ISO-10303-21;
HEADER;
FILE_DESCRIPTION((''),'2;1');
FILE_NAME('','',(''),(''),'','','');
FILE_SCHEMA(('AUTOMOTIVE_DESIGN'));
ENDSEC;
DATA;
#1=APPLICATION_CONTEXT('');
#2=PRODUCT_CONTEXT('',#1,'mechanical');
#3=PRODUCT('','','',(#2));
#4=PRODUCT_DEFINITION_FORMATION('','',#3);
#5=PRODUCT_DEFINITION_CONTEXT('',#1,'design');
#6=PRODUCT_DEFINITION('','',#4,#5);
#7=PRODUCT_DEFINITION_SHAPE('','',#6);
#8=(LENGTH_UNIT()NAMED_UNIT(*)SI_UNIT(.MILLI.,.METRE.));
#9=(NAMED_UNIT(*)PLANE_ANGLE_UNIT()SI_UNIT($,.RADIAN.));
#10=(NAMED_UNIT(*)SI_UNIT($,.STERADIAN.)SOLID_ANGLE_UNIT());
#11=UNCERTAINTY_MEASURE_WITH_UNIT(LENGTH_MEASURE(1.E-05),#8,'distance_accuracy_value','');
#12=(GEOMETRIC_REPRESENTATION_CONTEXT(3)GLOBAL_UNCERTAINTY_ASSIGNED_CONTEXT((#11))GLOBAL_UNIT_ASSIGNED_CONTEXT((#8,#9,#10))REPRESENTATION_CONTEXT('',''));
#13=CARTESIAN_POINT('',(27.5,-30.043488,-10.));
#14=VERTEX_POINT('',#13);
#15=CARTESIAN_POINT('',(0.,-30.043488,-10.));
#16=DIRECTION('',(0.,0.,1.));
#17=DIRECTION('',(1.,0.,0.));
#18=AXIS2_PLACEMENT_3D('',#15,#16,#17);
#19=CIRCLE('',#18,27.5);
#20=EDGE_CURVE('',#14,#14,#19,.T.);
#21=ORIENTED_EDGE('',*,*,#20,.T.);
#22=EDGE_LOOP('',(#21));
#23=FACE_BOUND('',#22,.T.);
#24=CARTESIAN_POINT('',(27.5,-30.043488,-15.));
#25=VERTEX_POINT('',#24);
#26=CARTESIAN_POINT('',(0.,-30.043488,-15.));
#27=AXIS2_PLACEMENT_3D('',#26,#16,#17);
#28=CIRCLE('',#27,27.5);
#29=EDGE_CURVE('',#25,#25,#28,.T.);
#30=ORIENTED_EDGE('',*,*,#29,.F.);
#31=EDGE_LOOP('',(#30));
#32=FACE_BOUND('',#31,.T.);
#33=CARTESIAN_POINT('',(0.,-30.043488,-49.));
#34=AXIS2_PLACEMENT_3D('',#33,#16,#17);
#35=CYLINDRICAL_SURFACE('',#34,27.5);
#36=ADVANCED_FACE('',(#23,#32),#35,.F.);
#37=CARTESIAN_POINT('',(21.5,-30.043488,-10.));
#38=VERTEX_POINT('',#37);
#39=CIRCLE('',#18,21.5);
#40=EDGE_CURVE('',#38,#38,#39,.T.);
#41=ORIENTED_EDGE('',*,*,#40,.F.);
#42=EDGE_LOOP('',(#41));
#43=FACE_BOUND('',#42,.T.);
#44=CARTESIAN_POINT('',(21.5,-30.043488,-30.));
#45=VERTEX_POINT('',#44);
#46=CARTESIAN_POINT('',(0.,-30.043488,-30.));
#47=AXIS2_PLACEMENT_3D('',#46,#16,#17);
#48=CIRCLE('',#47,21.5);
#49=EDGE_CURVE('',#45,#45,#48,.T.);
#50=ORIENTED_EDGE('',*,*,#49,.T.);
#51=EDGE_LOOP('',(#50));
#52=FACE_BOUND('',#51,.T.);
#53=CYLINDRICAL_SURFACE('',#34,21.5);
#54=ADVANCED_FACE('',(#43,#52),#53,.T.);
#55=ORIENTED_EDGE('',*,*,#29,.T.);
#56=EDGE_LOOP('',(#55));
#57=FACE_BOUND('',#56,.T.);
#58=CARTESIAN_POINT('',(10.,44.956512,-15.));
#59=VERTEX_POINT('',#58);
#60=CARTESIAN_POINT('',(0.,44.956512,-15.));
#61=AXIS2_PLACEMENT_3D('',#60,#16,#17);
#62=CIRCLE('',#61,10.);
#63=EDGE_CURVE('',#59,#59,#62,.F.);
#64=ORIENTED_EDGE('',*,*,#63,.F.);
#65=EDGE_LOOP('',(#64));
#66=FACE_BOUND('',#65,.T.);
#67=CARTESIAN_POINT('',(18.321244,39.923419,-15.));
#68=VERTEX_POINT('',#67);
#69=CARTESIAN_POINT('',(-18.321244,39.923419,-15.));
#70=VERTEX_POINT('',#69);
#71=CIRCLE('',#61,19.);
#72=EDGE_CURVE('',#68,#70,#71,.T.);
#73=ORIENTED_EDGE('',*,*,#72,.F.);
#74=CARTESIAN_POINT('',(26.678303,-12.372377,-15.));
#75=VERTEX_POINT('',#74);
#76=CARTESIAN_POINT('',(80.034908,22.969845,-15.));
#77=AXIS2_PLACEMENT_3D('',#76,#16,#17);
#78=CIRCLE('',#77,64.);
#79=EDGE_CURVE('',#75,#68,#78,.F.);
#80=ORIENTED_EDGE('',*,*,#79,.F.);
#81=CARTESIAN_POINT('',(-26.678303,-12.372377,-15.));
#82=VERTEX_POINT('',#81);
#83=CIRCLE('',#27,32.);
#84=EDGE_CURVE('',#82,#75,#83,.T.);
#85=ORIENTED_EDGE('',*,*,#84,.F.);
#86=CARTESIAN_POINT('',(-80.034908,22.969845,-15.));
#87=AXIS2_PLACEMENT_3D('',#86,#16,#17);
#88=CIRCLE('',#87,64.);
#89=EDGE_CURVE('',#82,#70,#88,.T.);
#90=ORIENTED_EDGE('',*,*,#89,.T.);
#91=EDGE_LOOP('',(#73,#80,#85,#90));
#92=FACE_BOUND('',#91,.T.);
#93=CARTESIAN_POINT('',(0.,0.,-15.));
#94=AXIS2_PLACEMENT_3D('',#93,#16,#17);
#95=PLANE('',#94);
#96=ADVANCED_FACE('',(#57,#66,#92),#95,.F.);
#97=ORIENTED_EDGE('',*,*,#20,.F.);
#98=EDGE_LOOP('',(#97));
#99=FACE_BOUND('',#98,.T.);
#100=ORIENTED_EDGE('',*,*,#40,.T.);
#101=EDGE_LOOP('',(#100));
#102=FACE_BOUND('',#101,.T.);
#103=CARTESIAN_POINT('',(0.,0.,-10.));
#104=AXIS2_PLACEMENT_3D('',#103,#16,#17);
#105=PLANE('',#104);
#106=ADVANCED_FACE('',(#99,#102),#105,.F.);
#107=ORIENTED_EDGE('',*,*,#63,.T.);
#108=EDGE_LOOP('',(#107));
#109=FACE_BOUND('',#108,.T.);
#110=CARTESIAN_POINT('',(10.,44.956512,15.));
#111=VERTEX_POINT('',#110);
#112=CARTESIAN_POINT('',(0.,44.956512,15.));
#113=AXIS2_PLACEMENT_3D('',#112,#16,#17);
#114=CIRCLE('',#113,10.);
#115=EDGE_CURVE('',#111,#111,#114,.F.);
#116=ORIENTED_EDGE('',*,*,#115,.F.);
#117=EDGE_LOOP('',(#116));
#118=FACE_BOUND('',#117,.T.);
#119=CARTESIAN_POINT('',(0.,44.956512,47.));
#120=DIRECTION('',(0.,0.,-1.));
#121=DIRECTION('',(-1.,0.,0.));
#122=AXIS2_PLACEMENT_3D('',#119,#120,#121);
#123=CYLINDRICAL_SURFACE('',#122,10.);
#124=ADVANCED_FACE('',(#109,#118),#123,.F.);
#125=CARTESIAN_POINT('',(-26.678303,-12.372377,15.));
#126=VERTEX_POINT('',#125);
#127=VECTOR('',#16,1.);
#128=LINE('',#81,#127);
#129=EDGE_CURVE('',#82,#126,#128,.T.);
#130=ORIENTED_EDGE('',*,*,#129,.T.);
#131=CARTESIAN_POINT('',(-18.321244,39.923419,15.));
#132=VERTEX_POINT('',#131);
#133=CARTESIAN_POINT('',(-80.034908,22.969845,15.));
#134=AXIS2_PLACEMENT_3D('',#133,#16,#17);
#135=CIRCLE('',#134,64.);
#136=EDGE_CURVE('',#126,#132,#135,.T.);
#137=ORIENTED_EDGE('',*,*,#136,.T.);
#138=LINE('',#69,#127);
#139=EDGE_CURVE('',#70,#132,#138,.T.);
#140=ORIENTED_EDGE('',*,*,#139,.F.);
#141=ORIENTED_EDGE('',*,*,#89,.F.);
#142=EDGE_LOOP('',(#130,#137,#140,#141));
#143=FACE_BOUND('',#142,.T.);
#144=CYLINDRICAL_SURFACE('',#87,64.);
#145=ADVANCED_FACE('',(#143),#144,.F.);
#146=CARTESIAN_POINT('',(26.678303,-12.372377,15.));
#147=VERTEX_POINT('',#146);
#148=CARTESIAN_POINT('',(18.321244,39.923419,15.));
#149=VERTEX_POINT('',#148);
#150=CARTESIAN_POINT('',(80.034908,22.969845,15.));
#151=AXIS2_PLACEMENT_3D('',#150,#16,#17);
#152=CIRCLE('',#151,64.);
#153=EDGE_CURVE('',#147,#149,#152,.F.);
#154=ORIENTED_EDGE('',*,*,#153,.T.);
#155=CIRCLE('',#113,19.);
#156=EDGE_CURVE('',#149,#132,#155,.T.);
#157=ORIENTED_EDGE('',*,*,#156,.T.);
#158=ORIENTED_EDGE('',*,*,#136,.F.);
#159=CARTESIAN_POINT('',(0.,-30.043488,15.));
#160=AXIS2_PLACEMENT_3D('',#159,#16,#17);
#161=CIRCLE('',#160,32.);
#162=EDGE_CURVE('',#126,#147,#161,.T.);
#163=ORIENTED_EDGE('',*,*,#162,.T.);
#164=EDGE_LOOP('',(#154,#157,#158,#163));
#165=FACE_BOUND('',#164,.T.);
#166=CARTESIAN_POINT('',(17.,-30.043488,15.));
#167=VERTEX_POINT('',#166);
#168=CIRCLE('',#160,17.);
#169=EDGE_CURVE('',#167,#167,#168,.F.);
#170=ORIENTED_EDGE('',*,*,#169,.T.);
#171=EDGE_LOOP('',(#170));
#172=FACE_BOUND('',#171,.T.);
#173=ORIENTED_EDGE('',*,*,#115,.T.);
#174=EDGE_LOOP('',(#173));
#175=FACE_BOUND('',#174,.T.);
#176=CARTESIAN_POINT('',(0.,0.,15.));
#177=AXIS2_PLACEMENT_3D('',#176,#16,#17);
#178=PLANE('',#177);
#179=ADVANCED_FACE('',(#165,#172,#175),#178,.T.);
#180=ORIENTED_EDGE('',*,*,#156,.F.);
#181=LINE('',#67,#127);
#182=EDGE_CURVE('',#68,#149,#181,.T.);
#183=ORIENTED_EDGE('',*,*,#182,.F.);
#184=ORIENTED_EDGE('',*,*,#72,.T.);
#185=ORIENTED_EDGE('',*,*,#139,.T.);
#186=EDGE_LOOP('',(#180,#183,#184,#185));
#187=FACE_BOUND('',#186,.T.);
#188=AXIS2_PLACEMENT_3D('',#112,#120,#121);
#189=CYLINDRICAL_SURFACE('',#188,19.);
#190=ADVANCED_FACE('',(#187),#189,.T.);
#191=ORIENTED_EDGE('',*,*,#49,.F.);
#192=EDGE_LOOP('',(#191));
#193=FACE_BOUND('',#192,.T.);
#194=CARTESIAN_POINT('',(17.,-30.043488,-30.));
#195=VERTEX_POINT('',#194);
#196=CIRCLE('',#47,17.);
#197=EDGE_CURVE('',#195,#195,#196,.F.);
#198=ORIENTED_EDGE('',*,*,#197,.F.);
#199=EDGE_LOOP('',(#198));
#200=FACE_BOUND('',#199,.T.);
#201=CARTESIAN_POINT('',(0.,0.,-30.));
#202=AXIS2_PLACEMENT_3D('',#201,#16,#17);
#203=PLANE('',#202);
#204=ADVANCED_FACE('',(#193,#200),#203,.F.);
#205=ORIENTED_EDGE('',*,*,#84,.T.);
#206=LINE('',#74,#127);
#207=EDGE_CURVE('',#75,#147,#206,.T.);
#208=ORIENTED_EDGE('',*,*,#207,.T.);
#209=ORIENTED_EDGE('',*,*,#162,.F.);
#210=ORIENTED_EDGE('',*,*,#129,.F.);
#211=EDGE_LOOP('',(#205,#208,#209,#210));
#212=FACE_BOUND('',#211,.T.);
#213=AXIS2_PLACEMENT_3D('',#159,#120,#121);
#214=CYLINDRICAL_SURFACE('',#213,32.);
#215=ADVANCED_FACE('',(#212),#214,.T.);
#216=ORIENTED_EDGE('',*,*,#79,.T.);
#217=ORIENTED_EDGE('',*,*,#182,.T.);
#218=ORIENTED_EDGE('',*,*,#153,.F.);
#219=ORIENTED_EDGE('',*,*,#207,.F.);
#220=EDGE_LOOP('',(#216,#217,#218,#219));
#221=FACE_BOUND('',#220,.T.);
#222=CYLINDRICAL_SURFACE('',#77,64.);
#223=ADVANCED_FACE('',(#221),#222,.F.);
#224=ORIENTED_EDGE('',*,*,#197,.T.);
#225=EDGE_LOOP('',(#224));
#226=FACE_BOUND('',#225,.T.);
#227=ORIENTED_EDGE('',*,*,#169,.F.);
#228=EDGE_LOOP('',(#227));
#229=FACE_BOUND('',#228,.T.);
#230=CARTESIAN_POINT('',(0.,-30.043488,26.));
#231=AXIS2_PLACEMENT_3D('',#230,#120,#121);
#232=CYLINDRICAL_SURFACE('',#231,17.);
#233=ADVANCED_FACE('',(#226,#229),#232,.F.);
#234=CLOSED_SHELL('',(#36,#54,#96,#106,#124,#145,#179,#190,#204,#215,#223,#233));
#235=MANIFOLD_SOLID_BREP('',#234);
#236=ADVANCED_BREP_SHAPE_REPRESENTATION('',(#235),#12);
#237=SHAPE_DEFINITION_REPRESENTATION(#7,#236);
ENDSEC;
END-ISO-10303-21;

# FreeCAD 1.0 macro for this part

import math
import FreeCAD as App
import Part
import Sketcher
from FreeCAD import Vector

doc = App.newDocument("Part")
body = doc.addObject("PartDesign::Body", "Body")

sketch1 = body.newObject("Sketcher::SketchObject", "Sketch")
sketch1.AttachmentSupport = (doc.getObject("XY_Plane"), [""])
sketch1.MapMode = "FlatFace"
sketch1.addGeometry([
    Part.ArcOfCircle(Part.Circle(Vector(0, -30.043488, 0), Vector(0, 0, 1), 32), math.radians(146.480399), math.radians(393.519601)),
    Part.ArcOfCircle(Part.Circle(Vector(80.034908, 22.969845, 0), Vector(0, 0, 1), 64), math.radians(164.639013), math.radians(213.519601)),
    Part.ArcOfCircle(Part.Circle(Vector(0, 44.956512, 0), Vector(0, 0, 1), 19), math.radians(-15.360987), math.radians(195.360987)),
    Part.ArcOfCircle(Part.Circle(Vector(-80.034908, 22.969845, 0), Vector(0, 0, 1), 64), math.radians(-33.519601), math.radians(15.360987)),
], False)
sketch1.addConstraint([
    Sketcher.Constraint("Tangent", 0, 2, 1, 2),
    Sketcher.Constraint("Tangent", 1, 1, 2, 1),
    Sketcher.Constraint("Tangent", 2, 2, 3, 2),
    Sketcher.Constraint("Tangent", 3, 1, 0, 1),
    Sketcher.Constraint("Equal", 1, 3),
    Sketcher.Constraint("Symmetric", 1, 3, 3, 3, -2),
    Sketcher.Constraint("Radius", 0, 32.0),
    Sketcher.Constraint("Radius", 1, 64.0),
    Sketcher.Constraint("Radius", 2, 19.0),
    Sketcher.Constraint("DistanceY", 0, 3, 2, 3, 75.0),
    Sketcher.Constraint("DistanceY", 0, 3, -1, 1, 30.043488),
])
pad1 = body.newObject("PartDesign::Pad", "Pad")
pad1.Profile = sketch1
pad1.Type = "TwoLengths"
pad1.Length = 15
pad1.Length2 = 15

sketch2 = body.newObject("Sketcher::SketchObject", "Sketch001")
sketch2.AttachmentSupport = (doc.getObject("XY_Plane"), [""])
sketch2.MapMode = "FlatFace"
sketch2.AttachmentOffset = App.Placement(Vector(0, 0, -10), App.Rotation())
sketch2.addGeometry([
    Part.Circle(Vector(0, -30.043488, 0), Vector(0, 0, 1), 27.5),
    Part.Circle(Vector(0, -30.043488, 0), Vector(0, 0, 1), 21.5),
], False)
sketch2.addConstraint([
    Sketcher.Constraint("Coincident", 1, 3, 0, 3),
    Sketcher.Constraint("PointOnObject", 0, 3, -2),
    Sketcher.Constraint("Diameter", 0, 55.0),
    Sketcher.Constraint("Diameter", 1, 43.0),
    Sketcher.Constraint("DistanceY", 0, 3, -1, 1, 30.043488),
])
pocket1 = body.newObject("PartDesign::Pocket", "Pocket")
pocket1.Profile = sketch2
pocket1.Length = 39

sketch3 = body.newObject("Sketcher::SketchObject", "Sketch002")
sketch3.AttachmentSupport = (doc.getObject("XY_Plane"), [""])
sketch3.MapMode = "FlatFace"
sketch3.addGeometry(Part.Circle(Vector(0, -30.043488, 0), Vector(0, 0, 1), 21.5), False)
sketch3.addConstraint([
    Sketcher.Constraint("PointOnObject", 0, 3, -2),
    Sketcher.Constraint("Diameter", 0, 43.0),
    Sketcher.Constraint("DistanceY", 0, 3, -1, 1, 30.043488),
])
pad2 = body.newObject("PartDesign::Pad", "Pad001")
pad2.Profile = sketch3
pad2.Length = 30
pad2.Reversed = True

sketch4 = body.newObject("Sketcher::SketchObject", "Sketch003")
sketch4.AttachmentSupport = (doc.getObject("XY_Plane"), [""])
sketch4.MapMode = "FlatFace"
sketch4.addGeometry(Part.Circle(Vector(0, -30.043488, 0), Vector(0, 0, 1), 17), False)
sketch4.addConstraint([
    Sketcher.Constraint("PointOnObject", 0, 3, -2),
    Sketcher.Constraint("Diameter", 0, 34.0),
    Sketcher.Constraint("DistanceY", 0, 3, -1, 1, 30.043488),
])
pocket2 = body.newObject("PartDesign::Pocket", "Pocket001")
pocket2.Profile = sketch4
pocket2.Type = "ThroughAll"
pocket2.Midplane = True

sketch5 = body.newObject("Sketcher::SketchObject", "Sketch004")
sketch5.AttachmentSupport = (doc.getObject("XY_Plane"), [""])
sketch5.MapMode = "FlatFace"
sketch5.addGeometry(Part.Circle(Vector(0, 44.956512, 0), Vector(0, 0, 1), 10), False)
sketch5.addConstraint([
    Sketcher.Constraint("PointOnObject", 0, 3, -2),
    Sketcher.Constraint("Diameter", 0, 20.0),
    Sketcher.Constraint("DistanceY", -1, 1, 0, 3, 44.956512),
])
pocket3 = body.newObject("PartDesign::Pocket", "Pocket002")
pocket3.Profile = sketch5
pocket3.Type = "ThroughAll"
pocket3.Midplane = True

doc.recompute()
